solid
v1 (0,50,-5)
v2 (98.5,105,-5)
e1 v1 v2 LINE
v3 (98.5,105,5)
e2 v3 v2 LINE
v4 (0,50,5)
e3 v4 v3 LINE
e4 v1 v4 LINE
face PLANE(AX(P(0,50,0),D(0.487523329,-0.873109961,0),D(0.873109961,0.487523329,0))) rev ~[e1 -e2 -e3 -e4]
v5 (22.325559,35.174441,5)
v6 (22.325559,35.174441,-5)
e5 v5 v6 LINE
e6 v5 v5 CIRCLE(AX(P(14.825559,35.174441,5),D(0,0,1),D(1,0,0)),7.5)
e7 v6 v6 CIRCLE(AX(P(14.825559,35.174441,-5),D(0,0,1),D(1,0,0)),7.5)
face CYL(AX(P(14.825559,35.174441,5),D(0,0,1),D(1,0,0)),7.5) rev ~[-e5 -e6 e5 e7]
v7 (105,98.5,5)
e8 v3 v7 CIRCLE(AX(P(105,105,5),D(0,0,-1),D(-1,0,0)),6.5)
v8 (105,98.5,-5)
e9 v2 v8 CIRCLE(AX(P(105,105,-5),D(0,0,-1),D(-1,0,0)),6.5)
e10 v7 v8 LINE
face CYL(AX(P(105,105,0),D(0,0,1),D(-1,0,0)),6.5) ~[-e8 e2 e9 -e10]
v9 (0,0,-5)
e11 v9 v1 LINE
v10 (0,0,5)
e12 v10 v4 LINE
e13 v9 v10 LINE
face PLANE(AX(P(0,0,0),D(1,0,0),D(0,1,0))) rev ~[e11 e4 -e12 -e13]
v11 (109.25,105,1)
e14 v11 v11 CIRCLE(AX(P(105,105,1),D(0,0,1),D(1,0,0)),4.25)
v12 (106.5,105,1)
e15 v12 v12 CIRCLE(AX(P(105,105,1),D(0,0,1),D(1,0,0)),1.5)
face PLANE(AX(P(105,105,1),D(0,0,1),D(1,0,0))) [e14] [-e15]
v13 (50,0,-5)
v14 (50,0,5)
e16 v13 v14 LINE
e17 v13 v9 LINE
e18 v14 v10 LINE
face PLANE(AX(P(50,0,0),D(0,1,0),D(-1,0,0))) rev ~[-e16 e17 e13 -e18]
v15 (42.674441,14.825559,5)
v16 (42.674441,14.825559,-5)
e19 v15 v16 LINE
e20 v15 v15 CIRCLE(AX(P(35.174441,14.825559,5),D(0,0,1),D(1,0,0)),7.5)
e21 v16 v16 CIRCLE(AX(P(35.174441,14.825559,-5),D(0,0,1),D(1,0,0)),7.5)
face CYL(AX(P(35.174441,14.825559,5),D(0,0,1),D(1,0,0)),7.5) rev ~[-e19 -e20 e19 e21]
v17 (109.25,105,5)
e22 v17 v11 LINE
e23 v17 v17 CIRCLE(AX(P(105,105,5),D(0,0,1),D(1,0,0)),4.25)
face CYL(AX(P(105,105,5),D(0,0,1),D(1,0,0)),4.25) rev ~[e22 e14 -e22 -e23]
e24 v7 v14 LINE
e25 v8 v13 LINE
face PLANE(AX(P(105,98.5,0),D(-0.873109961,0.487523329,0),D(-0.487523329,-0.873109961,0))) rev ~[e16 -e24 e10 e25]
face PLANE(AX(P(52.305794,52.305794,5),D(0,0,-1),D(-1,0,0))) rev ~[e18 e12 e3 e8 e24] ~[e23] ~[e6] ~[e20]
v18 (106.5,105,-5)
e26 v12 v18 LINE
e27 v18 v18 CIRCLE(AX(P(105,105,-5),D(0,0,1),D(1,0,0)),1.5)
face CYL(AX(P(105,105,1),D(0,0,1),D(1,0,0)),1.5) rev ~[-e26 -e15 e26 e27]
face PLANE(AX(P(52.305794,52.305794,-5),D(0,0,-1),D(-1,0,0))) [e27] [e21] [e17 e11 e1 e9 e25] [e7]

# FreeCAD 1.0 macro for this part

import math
import FreeCAD as App
import Part
import Sketcher

V = App.Vector

doc = App.newDocument("Part")
body = doc.addObject("PartDesign::Body", "Body")

sketch1 = body.newObject("Sketcher::SketchObject", "Sketch")
sketch1.AttachmentSupport = (doc.getObject("XY_Plane"), [""])
sketch1.MapMode = "FlatFace"
sketch1.addGeometry([
    Part.LineSegment(V(98, 105, 0), V(0, 50, 0)),
    Part.LineSegment(V(0, 50, 0), V(0, 0, 0)),
    Part.LineSegment(V(0, 0, 0), V(50, 0, 0)),
    Part.LineSegment(V(50, 0, 0), V(105, 98, 0)),
    Part.ArcOfCircle(Part.Circle(V(105, 105, 0), V(0, 0, 1), 6), math.radians(-90), math.radians(180)),
], False)
sketch1.addConstraint([
    Sketcher.Constraint("Coincident", 0, 2, 1, 1),
    Sketcher.Constraint("Coincident", 1, 2, 2, 1),
    Sketcher.Constraint("Coincident", 2, 2, 3, 1),
    Sketcher.Constraint("Coincident", 3, 2, 4, 1),
    Sketcher.Constraint("Coincident", 4, 2, 0, 1),
    Sketcher.Constraint("Vertical", 1),
    Sketcher.Constraint("Horizontal", 2),
    Sketcher.Constraint("Coincident", 1, 2, -1, 1),
    Sketcher.Constraint("Vertical", 4, 3, 3, 2),
    Sketcher.Constraint("Equal", 2, 1),
    Sketcher.Constraint("Equal", 0, 3),
    Sketcher.Constraint("Radius", 4, 6.5),
    Sketcher.Constraint("DistanceX", 2, 1, 2, 2, 50.0),
    Sketcher.Constraint("DistanceX", -1, 1, 4, 3, 105.0),
    Sketcher.Constraint("DistanceY", -1, 1, 4, 3, 105.0),
])
pad1 = body.newObject("PartDesign::Pad", "Pad")
pad1.Profile = sketch1
pad1.Length = 10
pad1.Midplane = True

sketch2 = body.newObject("Sketcher::SketchObject", "Sketch001")
sketch2.AttachmentSupport = (doc.getObject("XY_Plane"), [""])
sketch2.MapMode = "FlatFace"
sketch2.AttachmentOffset = App.Placement(V(0, 0, 5), App.Rotation())
sketch2.addGeometry(Part.Circle(V(105, 105, 0), V(0, 0, 1), 4.2), False)
sketch2.addConstraint([
    Sketcher.Constraint("Diameter", 0, 8.5),
    Sketcher.Constraint("DistanceX", -1, 1, 0, 3, 105.0),
    Sketcher.Constraint("DistanceY", -1, 1, 0, 3, 105.0),
])
pocket1 = body.newObject("PartDesign::Pocket", "Pocket")
pocket1.Profile = sketch2
pocket1.Length = 4

sketch3 = body.newObject("Sketcher::SketchObject", "Sketch002")
sketch3.AttachmentSupport = (doc.getObject("XY_Plane"), [""])
sketch3.MapMode = "FlatFace"
sketch3.AttachmentOffset = App.Placement(V(0, 0, 1), App.Rotation())
sketch3.addGeometry(Part.Circle(V(105, 105, 0), V(0, 0, 1), 1.5), False)
sketch3.addConstraint([
    Sketcher.Constraint("Diameter", 0, 3.0),
    Sketcher.Constraint("DistanceX", -1, 1, 0, 3, 105.0),
    Sketcher.Constraint("DistanceY", -1, 1, 0, 3, 105.0),
])
pocket2 = body.newObject("PartDesign::Pocket", "Pocket001")
pocket2.Profile = sketch3
pocket2.Type = "ThroughAll"

sketch4 = body.newObject("Sketcher::SketchObject", "Sketch003")
sketch4.AttachmentSupport = (doc.getObject("XY_Plane"), [""])
sketch4.MapMode = "FlatFace"
sketch4.AttachmentOffset = App.Placement(V(0, 0, 5), App.Rotation())
sketch4.addGeometry([
    Part.Circle(V(15, 35, 0), V(0, 0, 1), 8),
    Part.Circle(V(35, 15, 0), V(0, 0, 1), 8),
], False)
sketch4.addConstraint([
    Sketcher.Constraint("Equal", 0, 1),
    Sketcher.Constraint("Diameter", 0, 15.0),
    Sketcher.Constraint("DistanceX", -1, 1, 0, 3, 14.825559),
    Sketcher.Constraint("DistanceY", -1, 1, 0, 3, 35.174441),
    Sketcher.Constraint("DistanceX", -1, 1, 1, 3, 35.174441),
    Sketcher.Constraint("DistanceY", -1, 1, 1, 3, 14.825559),
])
pocket3 = body.newObject("PartDesign::Pocket", "Pocket002")
pocket3.Profile = sketch4
pocket3.Type = "ThroughAll"

doc.recompute()
